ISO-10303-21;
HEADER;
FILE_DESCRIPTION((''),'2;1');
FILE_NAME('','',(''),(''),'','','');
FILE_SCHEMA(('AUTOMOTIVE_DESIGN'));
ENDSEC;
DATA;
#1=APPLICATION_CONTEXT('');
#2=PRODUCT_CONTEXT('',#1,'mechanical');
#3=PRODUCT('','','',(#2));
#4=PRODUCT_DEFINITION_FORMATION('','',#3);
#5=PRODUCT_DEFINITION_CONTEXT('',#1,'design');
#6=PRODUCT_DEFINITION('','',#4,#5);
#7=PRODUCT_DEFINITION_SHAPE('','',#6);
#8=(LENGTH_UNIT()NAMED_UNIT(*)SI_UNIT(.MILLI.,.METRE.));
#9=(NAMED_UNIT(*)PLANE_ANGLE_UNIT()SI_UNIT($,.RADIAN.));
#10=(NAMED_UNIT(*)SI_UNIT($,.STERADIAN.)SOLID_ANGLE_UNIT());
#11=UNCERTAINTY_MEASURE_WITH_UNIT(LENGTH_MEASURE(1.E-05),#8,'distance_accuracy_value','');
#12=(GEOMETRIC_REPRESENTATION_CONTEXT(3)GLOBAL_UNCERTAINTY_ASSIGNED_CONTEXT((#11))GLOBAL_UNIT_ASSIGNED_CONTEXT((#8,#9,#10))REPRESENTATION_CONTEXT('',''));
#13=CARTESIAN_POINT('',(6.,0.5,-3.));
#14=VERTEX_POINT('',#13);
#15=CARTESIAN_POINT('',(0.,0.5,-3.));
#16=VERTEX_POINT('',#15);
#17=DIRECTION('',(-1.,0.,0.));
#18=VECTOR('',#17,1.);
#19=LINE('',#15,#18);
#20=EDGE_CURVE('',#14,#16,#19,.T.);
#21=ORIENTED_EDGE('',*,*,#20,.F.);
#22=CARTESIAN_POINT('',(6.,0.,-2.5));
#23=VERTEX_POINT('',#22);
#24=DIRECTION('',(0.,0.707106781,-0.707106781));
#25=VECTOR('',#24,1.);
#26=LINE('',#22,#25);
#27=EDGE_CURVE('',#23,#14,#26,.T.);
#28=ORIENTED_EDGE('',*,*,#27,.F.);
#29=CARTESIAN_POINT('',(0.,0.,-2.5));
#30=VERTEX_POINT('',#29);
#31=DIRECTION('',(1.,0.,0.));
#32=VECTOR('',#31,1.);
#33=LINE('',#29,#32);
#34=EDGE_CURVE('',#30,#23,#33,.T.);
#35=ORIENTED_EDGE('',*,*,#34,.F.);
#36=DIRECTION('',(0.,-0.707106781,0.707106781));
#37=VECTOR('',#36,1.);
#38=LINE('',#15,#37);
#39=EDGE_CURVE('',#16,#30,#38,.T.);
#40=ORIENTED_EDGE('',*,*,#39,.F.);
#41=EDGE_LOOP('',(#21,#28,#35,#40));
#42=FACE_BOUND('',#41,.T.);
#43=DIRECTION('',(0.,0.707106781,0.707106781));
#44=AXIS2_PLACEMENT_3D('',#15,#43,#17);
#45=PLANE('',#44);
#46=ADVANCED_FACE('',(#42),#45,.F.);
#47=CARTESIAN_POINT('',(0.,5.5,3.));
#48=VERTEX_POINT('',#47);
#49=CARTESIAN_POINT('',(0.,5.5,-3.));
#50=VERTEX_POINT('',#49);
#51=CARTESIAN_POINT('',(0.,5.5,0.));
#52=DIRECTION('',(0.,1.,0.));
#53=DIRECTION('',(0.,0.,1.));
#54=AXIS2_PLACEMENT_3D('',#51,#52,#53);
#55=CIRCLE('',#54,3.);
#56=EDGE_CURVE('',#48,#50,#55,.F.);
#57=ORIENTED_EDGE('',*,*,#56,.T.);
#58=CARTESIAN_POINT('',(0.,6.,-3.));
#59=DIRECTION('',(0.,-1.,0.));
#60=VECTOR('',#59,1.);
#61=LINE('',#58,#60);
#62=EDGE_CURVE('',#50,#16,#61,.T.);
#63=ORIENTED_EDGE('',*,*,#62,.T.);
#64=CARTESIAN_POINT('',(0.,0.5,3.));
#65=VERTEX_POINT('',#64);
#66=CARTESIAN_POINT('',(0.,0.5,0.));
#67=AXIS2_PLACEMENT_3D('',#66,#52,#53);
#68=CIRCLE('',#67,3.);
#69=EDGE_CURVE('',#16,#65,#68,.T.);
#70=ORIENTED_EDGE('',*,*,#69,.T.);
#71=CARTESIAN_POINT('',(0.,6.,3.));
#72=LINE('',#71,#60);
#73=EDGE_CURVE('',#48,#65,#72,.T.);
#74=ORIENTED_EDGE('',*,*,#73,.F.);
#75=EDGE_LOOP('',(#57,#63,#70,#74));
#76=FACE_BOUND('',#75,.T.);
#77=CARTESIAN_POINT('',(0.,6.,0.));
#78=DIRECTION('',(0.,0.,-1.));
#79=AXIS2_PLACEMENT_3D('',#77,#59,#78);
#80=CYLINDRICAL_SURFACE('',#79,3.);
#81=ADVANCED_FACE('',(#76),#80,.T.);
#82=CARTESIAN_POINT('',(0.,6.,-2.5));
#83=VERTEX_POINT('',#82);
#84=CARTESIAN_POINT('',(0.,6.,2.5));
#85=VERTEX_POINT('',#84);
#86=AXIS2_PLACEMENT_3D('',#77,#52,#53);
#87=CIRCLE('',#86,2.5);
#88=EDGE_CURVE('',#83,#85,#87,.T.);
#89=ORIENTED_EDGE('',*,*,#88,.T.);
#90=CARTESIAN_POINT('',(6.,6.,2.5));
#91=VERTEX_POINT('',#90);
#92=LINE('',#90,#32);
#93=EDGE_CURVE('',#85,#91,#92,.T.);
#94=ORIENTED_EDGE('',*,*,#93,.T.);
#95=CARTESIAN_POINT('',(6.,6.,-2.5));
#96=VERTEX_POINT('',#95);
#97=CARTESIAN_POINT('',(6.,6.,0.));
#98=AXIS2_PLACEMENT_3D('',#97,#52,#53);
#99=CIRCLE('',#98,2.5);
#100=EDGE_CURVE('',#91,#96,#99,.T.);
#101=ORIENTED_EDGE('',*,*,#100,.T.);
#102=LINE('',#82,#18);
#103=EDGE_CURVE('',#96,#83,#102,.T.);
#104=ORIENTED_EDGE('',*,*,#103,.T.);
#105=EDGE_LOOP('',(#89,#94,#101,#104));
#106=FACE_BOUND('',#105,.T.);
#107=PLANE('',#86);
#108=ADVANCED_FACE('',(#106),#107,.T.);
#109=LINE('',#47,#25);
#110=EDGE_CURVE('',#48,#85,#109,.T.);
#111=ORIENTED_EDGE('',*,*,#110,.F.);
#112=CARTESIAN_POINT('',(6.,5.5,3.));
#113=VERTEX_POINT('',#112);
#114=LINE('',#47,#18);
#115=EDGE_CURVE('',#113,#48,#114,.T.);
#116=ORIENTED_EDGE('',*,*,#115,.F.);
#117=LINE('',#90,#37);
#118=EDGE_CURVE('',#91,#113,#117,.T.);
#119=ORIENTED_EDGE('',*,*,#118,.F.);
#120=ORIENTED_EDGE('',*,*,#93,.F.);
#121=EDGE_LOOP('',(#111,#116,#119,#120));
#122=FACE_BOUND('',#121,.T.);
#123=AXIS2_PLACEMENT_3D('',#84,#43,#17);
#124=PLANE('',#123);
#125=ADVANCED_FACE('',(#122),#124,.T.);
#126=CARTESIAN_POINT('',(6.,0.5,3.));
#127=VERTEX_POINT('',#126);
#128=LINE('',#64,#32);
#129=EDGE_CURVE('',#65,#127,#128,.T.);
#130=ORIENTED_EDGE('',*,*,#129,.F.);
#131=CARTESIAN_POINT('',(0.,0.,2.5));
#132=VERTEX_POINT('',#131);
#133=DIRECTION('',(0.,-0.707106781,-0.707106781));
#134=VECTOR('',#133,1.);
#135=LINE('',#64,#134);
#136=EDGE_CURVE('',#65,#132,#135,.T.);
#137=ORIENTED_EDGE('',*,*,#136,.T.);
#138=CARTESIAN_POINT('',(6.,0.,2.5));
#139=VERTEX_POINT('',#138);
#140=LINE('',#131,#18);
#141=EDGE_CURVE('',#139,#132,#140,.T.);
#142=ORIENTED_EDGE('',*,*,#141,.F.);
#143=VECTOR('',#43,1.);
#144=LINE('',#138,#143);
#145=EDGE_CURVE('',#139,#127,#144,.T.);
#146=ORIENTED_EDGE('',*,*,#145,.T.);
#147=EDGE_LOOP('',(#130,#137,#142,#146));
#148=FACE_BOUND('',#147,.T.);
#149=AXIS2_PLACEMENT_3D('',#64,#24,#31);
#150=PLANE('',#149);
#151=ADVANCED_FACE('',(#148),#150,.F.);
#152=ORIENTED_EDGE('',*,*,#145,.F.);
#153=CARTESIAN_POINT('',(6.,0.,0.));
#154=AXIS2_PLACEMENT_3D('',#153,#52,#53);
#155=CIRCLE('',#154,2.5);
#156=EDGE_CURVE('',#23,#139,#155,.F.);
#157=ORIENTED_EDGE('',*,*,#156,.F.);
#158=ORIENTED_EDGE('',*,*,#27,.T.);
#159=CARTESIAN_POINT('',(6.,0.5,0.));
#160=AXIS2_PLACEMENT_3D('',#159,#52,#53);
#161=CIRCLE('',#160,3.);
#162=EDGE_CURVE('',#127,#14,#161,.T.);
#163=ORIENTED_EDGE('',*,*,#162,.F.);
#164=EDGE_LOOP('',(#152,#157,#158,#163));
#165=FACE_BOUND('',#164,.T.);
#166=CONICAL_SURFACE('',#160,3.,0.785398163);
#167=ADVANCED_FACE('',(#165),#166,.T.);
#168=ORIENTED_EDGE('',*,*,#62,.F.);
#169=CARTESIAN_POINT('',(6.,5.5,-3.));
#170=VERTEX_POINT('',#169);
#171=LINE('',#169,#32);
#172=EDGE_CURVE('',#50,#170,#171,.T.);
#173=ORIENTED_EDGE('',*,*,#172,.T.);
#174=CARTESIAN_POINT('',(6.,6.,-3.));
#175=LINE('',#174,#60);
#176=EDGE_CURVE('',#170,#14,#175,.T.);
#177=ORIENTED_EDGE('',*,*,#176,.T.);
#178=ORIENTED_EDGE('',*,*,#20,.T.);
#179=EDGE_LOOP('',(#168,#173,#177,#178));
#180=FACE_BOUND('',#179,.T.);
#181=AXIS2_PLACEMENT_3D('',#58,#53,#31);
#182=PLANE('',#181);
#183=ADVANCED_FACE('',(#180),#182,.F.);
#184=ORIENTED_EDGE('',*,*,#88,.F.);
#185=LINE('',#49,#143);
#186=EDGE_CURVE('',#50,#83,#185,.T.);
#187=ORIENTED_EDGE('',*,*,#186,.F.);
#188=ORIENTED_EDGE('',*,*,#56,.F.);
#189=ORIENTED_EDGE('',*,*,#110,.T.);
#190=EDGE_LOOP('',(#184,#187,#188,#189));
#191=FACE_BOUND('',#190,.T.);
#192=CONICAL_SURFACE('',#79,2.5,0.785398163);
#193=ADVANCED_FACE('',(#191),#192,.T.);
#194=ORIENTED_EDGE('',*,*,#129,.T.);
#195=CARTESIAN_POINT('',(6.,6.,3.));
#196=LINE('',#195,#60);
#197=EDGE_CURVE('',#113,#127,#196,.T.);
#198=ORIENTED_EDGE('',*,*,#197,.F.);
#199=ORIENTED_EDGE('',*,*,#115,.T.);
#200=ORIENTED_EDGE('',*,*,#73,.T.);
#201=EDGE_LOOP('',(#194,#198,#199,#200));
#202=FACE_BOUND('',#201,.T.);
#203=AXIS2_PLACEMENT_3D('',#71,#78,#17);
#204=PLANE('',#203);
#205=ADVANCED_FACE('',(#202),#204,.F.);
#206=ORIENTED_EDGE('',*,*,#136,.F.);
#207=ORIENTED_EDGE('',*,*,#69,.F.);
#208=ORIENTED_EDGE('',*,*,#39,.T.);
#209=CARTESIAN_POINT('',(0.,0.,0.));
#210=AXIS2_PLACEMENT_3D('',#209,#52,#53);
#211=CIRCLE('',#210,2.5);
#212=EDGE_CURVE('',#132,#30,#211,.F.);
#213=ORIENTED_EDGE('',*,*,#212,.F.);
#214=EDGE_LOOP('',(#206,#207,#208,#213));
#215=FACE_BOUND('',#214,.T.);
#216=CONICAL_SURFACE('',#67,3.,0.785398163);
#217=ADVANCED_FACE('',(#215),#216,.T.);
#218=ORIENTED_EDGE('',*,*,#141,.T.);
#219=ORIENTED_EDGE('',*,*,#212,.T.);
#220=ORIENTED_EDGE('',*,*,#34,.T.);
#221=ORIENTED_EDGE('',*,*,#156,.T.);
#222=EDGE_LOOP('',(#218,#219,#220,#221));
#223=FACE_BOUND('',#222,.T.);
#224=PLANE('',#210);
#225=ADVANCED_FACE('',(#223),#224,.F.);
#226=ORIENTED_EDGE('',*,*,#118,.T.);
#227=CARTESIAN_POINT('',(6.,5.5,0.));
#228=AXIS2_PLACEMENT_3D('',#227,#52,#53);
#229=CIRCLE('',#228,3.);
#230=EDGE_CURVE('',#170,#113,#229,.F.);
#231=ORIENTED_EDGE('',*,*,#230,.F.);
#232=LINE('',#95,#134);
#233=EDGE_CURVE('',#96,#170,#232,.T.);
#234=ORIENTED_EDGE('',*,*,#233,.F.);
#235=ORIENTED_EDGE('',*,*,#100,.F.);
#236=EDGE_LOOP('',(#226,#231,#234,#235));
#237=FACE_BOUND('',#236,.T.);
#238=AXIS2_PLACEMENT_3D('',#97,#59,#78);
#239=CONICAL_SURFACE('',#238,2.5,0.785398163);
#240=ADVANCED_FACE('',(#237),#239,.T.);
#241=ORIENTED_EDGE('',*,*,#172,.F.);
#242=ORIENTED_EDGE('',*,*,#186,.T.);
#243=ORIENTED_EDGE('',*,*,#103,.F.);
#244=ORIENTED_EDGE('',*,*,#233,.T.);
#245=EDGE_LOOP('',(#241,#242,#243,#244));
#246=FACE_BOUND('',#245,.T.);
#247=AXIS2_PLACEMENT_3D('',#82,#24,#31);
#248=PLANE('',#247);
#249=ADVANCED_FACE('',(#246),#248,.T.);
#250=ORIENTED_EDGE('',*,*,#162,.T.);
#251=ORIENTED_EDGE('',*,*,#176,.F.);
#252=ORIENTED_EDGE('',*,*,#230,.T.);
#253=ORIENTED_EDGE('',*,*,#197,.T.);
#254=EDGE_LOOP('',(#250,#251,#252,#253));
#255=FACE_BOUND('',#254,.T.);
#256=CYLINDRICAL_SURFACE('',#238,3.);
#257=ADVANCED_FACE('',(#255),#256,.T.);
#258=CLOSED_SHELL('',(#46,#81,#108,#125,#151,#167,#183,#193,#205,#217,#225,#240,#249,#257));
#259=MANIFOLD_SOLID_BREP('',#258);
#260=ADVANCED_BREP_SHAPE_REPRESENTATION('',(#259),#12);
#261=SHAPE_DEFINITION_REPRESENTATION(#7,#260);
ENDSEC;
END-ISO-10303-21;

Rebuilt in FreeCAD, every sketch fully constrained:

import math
import FreeCAD as App
import Part
import Sketcher
Q = App.Units.Quantity


def edges_at(feature, points):
    """Names of the edges that pass closest to the given points."""
    edges = feature.Shape.Edges
    near = lambda p: min(range(len(edges)), key=lambda i: edges[i].distToShape(Part.Vertex(*p))[0])
    return sorted({f"Edge{near(p) + 1}" for p in points})

doc = App.newDocument("Part")
body = doc.addObject("PartDesign::Body", "Body")

# Sketch on XZ plane
sketch1 = body.newObject("Sketcher::SketchObject", "Sketch")
sketch1.AttachmentSupport = (doc.getObject("XZ_Plane"), [""])
sketch1.MapMode = "FlatFace"
sketch1.addGeometry([
    Part.LineSegment(App.Vector(6, -3, 0), App.Vector(0, -3, 0)),
    Part.ArcOfCircle(Part.Circle(App.Vector(0, 0, 0), App.Vector(0, 0, 1), 3), math.radians(90), math.radians(270)),
    Part.LineSegment(App.Vector(0, 3, 0), App.Vector(6, 3, 0)),
    Part.ArcOfCircle(Part.Circle(App.Vector(6, 0, 0), App.Vector(0, 0, 1), 3), math.radians(-90), math.radians(90)),
], False)
sketch1.addConstraint([
    Sketcher.Constraint("Tangent", 0, 2, 1, 2),
    Sketcher.Constraint("Tangent", 1, 1, 2, 1),
    Sketcher.Constraint("Tangent", 2, 2, 3, 2),
    Sketcher.Constraint("Tangent", 3, 1, 0, 1),
    Sketcher.Constraint("Horizontal", 0),
    Sketcher.Constraint("Horizontal", 2),
    Sketcher.Constraint("Coincident", 1, 3, -1, 1),
    Sketcher.Constraint("Radius", 1, Q("3 mm")),
    Sketcher.Constraint("DistanceX", 0, 2, 0, 1, Q("6 mm")),
])
pad1 = body.newObject("PartDesign::Pad", "Pad")
pad1.Profile = sketch1
pad1.Length = 6
pad1.Reversed = True
doc.recompute()

chamfer = body.newObject("PartDesign::Chamfer", "Chamfer")
chamfer.Base = (pad1, edges_at(pad1, [
    (9, 6, 0),
    (3, 6, -3),
    (-3, 6, 0),
    (3, 0, -3),
    (9, 0, 0),
    (3, 0, 3),
    (-3, 0, 0),
    (3, 6, 3),
]))
chamfer.Size = 0.5

doc.recompute()
